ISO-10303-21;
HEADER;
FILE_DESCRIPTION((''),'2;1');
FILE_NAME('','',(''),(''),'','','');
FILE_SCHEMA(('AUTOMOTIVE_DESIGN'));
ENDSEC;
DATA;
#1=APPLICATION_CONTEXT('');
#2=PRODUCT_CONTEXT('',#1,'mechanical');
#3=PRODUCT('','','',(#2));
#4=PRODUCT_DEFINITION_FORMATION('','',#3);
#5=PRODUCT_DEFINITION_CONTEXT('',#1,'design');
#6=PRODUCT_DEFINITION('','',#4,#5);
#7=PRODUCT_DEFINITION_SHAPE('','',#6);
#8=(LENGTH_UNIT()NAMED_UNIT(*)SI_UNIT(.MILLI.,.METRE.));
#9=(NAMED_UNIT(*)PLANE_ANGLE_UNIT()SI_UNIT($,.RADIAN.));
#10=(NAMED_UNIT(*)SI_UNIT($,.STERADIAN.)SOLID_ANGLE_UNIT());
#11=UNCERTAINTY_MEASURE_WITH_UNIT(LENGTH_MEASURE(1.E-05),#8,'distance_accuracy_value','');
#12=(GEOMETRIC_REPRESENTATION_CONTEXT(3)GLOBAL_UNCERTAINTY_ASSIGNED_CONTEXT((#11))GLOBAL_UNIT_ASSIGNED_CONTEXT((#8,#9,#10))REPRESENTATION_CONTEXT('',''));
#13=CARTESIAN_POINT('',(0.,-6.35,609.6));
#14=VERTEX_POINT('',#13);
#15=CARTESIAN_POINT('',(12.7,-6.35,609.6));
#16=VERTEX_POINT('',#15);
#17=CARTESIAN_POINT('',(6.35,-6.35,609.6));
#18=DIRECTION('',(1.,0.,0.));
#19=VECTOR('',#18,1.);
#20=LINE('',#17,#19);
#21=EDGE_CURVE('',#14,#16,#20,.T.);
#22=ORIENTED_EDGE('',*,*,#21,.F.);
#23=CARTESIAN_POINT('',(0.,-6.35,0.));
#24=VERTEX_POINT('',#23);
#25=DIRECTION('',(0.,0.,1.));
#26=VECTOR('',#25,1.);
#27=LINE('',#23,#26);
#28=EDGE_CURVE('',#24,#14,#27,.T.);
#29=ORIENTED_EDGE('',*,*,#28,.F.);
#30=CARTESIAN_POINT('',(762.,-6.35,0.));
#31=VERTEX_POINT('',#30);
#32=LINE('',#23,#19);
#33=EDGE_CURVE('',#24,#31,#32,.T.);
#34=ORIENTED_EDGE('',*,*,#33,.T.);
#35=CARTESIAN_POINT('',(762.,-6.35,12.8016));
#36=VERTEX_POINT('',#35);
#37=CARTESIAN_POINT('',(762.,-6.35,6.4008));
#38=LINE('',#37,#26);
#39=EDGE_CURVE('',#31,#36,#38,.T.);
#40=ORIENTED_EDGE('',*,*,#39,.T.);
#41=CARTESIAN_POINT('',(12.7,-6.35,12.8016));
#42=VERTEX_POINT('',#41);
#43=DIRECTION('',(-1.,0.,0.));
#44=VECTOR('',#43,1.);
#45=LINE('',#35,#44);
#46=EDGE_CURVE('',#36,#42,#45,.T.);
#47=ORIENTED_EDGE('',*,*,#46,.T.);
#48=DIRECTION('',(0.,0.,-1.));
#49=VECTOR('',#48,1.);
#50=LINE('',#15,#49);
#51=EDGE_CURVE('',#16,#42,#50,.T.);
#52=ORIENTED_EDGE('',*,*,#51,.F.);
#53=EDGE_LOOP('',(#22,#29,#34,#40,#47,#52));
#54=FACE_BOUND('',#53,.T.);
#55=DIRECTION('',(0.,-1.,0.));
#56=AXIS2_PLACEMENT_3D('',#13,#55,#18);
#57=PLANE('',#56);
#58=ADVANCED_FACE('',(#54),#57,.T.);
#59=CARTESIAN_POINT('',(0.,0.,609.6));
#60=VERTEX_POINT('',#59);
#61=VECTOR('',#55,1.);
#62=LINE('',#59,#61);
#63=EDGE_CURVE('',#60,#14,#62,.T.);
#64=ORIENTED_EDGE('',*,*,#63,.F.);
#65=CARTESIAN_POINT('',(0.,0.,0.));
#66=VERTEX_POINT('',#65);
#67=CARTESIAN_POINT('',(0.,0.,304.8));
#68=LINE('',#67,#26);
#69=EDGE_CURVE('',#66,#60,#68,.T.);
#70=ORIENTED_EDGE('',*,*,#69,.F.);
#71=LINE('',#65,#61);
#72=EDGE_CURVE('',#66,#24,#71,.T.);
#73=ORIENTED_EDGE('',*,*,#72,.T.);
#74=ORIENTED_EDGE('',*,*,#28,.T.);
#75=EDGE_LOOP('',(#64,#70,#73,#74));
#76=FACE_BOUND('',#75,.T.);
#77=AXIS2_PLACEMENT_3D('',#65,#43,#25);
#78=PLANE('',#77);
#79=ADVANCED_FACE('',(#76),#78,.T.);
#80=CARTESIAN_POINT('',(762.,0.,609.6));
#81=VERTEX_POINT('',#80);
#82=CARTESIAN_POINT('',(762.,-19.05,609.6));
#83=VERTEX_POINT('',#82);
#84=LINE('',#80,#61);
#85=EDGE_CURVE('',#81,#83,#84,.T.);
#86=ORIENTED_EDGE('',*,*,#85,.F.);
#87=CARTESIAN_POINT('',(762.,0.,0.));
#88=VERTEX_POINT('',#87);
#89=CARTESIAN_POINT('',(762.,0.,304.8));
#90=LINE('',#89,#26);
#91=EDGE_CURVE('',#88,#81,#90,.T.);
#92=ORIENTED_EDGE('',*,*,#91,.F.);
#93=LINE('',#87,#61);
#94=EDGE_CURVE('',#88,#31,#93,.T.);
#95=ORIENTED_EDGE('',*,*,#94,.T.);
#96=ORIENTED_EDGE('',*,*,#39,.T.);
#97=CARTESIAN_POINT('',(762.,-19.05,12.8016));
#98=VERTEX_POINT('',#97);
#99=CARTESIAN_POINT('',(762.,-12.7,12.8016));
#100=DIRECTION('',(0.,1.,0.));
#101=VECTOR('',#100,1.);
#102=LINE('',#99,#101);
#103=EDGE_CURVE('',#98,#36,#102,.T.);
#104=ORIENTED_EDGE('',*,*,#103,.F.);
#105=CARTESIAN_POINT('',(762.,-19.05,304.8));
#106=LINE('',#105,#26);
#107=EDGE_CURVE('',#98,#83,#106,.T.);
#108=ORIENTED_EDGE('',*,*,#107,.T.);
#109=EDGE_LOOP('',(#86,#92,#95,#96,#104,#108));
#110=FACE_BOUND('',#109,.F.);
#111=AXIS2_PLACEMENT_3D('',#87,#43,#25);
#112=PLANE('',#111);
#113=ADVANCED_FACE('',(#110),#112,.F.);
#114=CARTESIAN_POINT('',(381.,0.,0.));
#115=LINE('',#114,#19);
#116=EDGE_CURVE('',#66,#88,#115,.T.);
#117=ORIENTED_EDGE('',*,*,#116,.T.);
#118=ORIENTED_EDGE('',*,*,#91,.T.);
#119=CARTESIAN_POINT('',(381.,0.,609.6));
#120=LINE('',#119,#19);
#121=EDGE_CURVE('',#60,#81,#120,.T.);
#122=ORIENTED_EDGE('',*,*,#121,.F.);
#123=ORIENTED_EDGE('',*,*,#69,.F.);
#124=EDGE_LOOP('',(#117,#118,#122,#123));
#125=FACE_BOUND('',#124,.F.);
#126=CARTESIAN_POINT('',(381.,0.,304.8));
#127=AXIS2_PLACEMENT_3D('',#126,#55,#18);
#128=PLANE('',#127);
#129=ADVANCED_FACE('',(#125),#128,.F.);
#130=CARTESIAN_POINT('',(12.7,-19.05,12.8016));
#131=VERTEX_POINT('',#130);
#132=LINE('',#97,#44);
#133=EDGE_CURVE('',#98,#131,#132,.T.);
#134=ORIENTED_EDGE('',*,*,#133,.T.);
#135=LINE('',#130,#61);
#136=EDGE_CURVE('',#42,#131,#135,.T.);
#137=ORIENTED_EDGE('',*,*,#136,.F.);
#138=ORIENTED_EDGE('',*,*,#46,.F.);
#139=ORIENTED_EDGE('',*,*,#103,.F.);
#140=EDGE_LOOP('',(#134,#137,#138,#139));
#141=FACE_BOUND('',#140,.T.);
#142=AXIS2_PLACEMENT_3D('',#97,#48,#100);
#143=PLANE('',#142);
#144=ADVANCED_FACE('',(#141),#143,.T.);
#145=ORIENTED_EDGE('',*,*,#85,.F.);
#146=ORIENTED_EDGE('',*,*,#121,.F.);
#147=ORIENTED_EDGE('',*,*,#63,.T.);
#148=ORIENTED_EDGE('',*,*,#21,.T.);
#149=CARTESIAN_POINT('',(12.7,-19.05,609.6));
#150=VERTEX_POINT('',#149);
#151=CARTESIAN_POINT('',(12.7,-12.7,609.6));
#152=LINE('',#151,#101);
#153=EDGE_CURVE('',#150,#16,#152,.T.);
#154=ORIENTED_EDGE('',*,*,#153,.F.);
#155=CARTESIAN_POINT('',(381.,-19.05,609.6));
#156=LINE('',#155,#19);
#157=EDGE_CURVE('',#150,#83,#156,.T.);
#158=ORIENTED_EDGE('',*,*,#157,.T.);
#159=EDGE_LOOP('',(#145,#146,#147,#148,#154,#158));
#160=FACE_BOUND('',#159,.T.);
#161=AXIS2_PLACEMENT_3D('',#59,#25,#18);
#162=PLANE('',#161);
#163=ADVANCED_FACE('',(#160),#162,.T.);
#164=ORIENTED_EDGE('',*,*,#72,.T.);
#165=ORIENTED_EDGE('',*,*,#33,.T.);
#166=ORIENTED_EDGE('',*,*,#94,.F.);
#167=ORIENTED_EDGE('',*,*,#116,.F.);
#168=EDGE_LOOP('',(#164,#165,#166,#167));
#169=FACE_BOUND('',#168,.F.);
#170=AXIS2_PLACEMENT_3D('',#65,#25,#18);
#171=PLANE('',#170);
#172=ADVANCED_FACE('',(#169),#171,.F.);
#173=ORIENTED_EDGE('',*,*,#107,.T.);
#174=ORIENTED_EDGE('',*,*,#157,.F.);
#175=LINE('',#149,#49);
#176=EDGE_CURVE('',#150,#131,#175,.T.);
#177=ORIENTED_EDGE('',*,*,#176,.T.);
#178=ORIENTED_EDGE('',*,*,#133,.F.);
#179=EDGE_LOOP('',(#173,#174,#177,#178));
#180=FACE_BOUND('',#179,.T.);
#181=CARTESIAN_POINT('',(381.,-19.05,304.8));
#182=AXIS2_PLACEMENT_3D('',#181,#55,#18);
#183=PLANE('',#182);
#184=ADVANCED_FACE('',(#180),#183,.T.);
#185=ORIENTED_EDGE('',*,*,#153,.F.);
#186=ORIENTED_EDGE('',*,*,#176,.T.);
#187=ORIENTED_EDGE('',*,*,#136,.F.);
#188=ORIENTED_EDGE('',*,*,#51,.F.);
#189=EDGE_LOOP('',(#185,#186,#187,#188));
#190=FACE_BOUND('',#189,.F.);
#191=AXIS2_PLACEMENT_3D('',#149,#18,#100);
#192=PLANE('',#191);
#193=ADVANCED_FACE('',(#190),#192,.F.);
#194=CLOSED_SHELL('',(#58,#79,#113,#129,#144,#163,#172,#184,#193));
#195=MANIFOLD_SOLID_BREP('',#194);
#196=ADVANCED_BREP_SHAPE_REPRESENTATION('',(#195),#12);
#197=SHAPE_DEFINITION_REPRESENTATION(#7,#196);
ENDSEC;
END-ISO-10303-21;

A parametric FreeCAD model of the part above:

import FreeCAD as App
import Part
import Sketcher

V = App.Vector
Q = App.Units.Quantity

doc = App.newDocument("Part")
body = doc.addObject("PartDesign::Body", "Body")

# Sketch on XZ plane
sketch1 = doc.addObject("Sketcher::SketchObject", "Sketch")
body.addObject(sketch1)
sketch1.AttachmentSupport = (doc.XZ_Plane, [""])
sketch1.MapMode = "FlatFace"
sketch1.addGeometry(Part.LineSegment(V(0, 610, 0), V(0, 0, 0)), False)
sketch1.addGeometry(Part.LineSegment(V(0, 0, 0), V(762, 0, 0)), False)
sketch1.addGeometry(Part.LineSegment(V(762, 0, 0), V(762, 610, 0)), False)
sketch1.addGeometry(Part.LineSegment(V(762, 610, 0), V(0, 610, 0)), False)
sketch1.addConstraint(Sketcher.Constraint("Coincident", 0, 2, 1, 1))
sketch1.addConstraint(Sketcher.Constraint("Coincident", 1, 2, 2, 1))
sketch1.addConstraint(Sketcher.Constraint("Coincident", 2, 2, 3, 1))
sketch1.addConstraint(Sketcher.Constraint("Coincident", 3, 2, 0, 1))
sketch1.addConstraint(Sketcher.Constraint("Vertical", 0))
sketch1.addConstraint(Sketcher.Constraint("Horizontal", 1))
sketch1.addConstraint(Sketcher.Constraint("Vertical", 2))
sketch1.addConstraint(Sketcher.Constraint("Horizontal", 3))
sketch1.addConstraint(Sketcher.Constraint("Coincident", 0, 2, -1, 1))
sketch1.addConstraint(Sketcher.Constraint("DistanceX", 1, 1, 1, 2, Q("30 in")))
sketch1.addConstraint(Sketcher.Constraint("DistanceY", 0, 2, 0, 1, Q("24 in")))
pad1 = doc.addObject("PartDesign::Pad", "Pad")
body.addObject(pad1)
pad1.Profile = sketch1
pad1.Length = Q("0.75 in")

# Sketch on YZ plane
sketch2 = doc.addObject("Sketcher::SketchObject", "Sketch001")
body.addObject(sketch2)
sketch2.AttachmentSupport = (doc.YZ_Plane, [""])
sketch2.MapMode = "FlatFace"
sketch2.AttachmentOffset = App.Placement(V(0, 0, 30 * 25.4), App.Rotation())
sketch2.addGeometry(Part.LineSegment(V(-19, 13, 0), V(-19, 0, 0)), False)
sketch2.addGeometry(Part.LineSegment(V(-19, 0, 0), V(-6, 0, 0)), False)
sketch2.addGeometry(Part.LineSegment(V(-6, 0, 0), V(-6, 13, 0)), False)
sketch2.addGeometry(Part.LineSegment(V(-6, 13, 0), V(-19, 13, 0)), False)
sketch2.addConstraint(Sketcher.Constraint("Coincident", 0, 2, 1, 1))
sketch2.addConstraint(Sketcher.Constraint("Coincident", 1, 2, 2, 1))
sketch2.addConstraint(Sketcher.Constraint("Coincident", 2, 2, 3, 1))
sketch2.addConstraint(Sketcher.Constraint("Coincident", 3, 2, 0, 1))
sketch2.addConstraint(Sketcher.Constraint("Vertical", 0))
sketch2.addConstraint(Sketcher.Constraint("Horizontal", 1))
sketch2.addConstraint(Sketcher.Constraint("Vertical", 2))
sketch2.addConstraint(Sketcher.Constraint("Horizontal", 3))
sketch2.addConstraint(Sketcher.Constraint("PointOnObject", 0, 2, -1))
sketch2.addConstraint(Sketcher.Constraint("DistanceX", 1, 1, 1, 2, Q("0.5 in")))
sketch2.addConstraint(Sketcher.Constraint("DistanceY", 0, 2, 0, 1, Q("0.504 in")))
sketch2.addConstraint(Sketcher.Constraint("DistanceX", 0, 2, -1, 1, Q("0.75 in")))
pocket1 = doc.addObject("PartDesign::Pocket", "Pocket")
body.addObject(pocket1)
pocket1.Profile = sketch2
pocket1.Type = "ThroughAll"

# Sketch on XY plane
sketch3 = doc.addObject("Sketcher::SketchObject", "Sketch002")
body.addObject(sketch3)
sketch3.AttachmentSupport = (doc.XY_Plane, [""])
sketch3.MapMode = "FlatFace"
sketch3.AttachmentOffset = App.Placement(V(0, 0, 24 * 25.4), App.Rotation())
sketch3.addGeometry(Part.LineSegment(V(0, -6, 0), V(0, -19, 0)), False)
sketch3.addGeometry(Part.LineSegment(V(0, -19, 0), V(13, -19, 0)), False)
sketch3.addGeometry(Part.LineSegment(V(13, -19, 0), V(13, -6, 0)), False)
sketch3.addGeometry(Part.LineSegment(V(13, -6, 0), V(0, -6, 0)), False)
sketch3.addConstraint(Sketcher.Constraint("Coincident", 0, 2, 1, 1))
sketch3.addConstraint(Sketcher.Constraint("Coincident", 1, 2, 2, 1))
sketch3.addConstraint(Sketcher.Constraint("Coincident", 2, 2, 3, 1))
sketch3.addConstraint(Sketcher.Constraint("Coincident", 3, 2, 0, 1))
sketch3.addConstraint(Sketcher.Constraint("Vertical", 0))
sketch3.addConstraint(Sketcher.Constraint("Horizontal", 1))
sketch3.addConstraint(Sketcher.Constraint("Vertical", 2))
sketch3.addConstraint(Sketcher.Constraint("Horizontal", 3))
sketch3.addConstraint(Sketcher.Constraint("PointOnObject", 0, 2, -2))
sketch3.addConstraint(Sketcher.Constraint("Equal", 3, 0))
sketch3.addConstraint(Sketcher.Constraint("DistanceX", 1, 1, 1, 2, Q("0.5 in")))
sketch3.addConstraint(Sketcher.Constraint("DistanceY", 0, 2, -1, 1, Q("0.75 in")))
pocket2 = doc.addObject("PartDesign::Pocket", "Pocket001")
body.addObject(pocket2)
pocket2.Profile = sketch3
pocket2.Type = "ThroughAll"

doc.recompute()
